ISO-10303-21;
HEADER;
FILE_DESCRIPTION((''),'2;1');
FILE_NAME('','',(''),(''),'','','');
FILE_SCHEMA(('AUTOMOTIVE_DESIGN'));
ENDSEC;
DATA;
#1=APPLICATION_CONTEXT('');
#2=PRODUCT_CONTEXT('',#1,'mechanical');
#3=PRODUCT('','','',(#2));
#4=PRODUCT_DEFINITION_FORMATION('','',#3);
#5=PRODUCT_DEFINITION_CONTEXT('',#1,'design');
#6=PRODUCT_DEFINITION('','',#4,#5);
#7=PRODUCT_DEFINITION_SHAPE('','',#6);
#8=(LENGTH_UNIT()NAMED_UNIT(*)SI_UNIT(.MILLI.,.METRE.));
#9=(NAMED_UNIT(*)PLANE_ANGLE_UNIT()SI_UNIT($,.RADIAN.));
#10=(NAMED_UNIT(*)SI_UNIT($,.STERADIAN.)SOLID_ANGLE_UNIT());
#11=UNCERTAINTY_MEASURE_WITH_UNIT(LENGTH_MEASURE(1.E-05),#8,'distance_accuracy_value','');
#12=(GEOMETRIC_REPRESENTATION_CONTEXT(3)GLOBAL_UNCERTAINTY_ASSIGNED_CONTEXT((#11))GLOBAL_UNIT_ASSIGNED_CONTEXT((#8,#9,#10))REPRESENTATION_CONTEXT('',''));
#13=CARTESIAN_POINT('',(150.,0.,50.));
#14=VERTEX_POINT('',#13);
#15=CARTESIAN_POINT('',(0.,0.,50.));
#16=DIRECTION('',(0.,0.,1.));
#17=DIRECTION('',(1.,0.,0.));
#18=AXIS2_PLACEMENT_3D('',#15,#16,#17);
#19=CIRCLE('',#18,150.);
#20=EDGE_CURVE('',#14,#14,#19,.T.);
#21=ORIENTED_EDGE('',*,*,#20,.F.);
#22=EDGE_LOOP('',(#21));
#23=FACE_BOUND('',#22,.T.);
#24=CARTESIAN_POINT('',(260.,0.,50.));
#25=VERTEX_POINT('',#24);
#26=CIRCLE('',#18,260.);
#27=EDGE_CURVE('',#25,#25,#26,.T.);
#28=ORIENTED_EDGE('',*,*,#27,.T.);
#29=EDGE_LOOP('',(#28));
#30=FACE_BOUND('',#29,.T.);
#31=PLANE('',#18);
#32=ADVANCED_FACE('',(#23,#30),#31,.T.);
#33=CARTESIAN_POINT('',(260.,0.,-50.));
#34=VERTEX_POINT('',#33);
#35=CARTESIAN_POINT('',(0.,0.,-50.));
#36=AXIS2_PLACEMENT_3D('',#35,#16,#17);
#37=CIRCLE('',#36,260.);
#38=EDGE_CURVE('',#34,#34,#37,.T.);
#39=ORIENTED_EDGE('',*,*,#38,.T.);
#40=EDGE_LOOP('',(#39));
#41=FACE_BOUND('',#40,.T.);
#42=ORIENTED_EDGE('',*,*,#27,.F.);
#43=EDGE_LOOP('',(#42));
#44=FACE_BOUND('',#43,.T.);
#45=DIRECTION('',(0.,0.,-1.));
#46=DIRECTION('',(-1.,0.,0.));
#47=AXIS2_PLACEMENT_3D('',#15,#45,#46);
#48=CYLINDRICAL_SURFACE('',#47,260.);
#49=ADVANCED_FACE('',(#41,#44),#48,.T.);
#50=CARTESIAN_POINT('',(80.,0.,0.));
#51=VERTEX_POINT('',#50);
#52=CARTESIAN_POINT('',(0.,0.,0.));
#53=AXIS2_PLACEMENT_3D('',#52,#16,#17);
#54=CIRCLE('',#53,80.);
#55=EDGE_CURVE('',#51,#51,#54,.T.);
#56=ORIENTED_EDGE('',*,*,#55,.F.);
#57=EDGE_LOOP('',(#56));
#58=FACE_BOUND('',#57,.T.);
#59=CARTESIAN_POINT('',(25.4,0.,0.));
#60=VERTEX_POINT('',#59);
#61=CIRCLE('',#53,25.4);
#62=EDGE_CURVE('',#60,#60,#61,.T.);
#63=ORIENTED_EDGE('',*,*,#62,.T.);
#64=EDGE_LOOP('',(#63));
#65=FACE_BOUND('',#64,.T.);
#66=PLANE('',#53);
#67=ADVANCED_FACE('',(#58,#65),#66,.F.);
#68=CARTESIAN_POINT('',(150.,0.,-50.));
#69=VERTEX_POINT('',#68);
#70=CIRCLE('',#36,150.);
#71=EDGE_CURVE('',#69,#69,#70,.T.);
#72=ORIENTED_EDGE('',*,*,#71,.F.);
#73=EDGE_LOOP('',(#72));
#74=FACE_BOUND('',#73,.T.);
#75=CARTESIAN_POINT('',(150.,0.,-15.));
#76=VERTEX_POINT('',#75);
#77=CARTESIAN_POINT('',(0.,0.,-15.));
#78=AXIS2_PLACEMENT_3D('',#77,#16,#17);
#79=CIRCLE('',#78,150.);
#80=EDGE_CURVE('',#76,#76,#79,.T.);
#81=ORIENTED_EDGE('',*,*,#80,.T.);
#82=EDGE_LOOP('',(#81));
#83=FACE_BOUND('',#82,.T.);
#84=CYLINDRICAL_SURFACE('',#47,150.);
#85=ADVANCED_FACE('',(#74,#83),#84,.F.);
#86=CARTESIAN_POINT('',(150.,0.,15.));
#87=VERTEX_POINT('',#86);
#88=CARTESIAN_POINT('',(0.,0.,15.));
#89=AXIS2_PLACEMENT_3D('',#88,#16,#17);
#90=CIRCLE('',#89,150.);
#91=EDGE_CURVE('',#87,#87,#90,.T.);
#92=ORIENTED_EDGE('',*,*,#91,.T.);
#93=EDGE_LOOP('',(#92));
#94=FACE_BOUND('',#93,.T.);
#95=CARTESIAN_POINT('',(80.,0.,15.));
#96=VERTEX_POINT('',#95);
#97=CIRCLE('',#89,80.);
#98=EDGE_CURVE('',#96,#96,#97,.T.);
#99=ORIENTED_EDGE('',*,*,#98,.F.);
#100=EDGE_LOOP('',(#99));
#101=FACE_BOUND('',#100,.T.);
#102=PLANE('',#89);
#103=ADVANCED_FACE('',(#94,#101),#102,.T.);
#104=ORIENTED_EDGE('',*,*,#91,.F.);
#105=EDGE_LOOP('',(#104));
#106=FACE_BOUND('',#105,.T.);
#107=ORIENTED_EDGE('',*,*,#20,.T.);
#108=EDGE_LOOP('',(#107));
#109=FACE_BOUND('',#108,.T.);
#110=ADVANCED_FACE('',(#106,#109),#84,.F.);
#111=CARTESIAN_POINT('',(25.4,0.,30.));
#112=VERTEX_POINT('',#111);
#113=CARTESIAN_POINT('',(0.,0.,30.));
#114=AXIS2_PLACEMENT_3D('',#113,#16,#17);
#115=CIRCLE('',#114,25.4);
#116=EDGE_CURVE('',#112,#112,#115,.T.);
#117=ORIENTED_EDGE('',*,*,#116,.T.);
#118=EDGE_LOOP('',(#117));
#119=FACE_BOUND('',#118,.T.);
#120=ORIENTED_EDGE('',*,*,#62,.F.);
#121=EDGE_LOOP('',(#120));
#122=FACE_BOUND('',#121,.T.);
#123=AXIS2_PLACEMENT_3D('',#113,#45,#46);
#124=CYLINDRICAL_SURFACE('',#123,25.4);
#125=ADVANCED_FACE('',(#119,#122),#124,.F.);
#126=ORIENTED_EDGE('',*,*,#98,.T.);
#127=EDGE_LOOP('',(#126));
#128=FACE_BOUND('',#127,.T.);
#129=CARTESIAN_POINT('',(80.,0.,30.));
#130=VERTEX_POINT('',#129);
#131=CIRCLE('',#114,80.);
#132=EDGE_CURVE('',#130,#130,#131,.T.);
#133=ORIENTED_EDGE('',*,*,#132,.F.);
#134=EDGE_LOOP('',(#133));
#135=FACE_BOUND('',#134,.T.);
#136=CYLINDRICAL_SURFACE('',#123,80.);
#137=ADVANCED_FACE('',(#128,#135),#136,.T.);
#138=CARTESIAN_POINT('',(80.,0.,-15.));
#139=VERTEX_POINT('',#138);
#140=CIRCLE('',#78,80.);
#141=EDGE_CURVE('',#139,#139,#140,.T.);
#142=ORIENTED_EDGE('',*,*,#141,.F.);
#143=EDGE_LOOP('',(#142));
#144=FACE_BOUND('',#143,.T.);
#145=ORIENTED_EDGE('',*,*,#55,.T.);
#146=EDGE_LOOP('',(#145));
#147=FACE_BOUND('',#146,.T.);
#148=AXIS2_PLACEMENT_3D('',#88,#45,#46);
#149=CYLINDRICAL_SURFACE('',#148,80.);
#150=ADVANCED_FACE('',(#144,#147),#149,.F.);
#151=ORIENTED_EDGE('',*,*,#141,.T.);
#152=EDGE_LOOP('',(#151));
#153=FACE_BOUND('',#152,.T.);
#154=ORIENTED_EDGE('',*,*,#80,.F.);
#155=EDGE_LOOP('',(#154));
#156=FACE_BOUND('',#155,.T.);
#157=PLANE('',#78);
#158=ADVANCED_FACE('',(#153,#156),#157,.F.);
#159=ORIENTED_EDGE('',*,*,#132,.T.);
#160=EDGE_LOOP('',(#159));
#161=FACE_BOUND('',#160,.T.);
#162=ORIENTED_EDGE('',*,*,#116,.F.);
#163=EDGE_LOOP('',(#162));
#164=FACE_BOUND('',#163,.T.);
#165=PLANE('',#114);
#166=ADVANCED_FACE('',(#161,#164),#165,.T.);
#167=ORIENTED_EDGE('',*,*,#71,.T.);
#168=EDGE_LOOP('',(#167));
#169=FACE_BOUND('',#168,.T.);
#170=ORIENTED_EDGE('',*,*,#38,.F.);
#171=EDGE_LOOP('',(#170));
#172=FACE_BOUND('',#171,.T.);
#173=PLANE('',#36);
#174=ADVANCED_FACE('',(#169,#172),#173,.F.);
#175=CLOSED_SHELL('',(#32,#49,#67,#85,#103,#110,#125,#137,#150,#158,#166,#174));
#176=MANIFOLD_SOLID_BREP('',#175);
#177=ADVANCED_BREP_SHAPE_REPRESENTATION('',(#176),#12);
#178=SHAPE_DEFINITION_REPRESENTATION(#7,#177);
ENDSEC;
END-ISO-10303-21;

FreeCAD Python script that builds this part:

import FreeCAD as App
import Part
import Sketcher

V = App.Vector
Q = App.Units.Quantity

doc = App.newDocument("Part")
params = doc.addObject("Spreadsheet::Sheet", "Params")
for row, (alias, value) in enumerate([
    ("sketch1_diameter", "520 mm"),
    ("sketch1_diameter2", "300 mm"),
    ("pad1_length", "100 mm"),
    ("sketch2_diameter", "300 mm"),
    ("sketch2_diameter2", "160 mm"),
    ("pad2_length", "30 mm"),
    ("sketch3_diameter", "160 mm"),
    ("sketch3_diameter2", "50.8 mm"),
    ("pad3_length", "30 mm"),
], start=1):
    params.set(f"A{row}", alias)
    params.set(f"B{row}", "=" + value)
    params.setAlias(f"B{row}", alias)

body = doc.addObject("PartDesign::Body", "Body")

# Sketch on XY plane
sketch1 = body.newObject("Sketcher::SketchObject", "Sketch")
sketch1.AttachmentSupport = (doc.getObject("XY_Plane"), [""])
sketch1.MapMode = "FlatFace"
sketch1.addGeometry([
    Part.Circle(V(0, 0, 0), V(0, 0, 1), 260),
    Part.Circle(V(0, 0, 0), V(0, 0, 1), 150),
], False)
sketch1.addConstraint([
    Sketcher.Constraint("Coincident", 0, 3, -1, 1),
    Sketcher.Constraint("Coincident", 1, 3, -1, 1),
    Sketcher.Constraint("Diameter", 0, Q("520 mm")),
    Sketcher.Constraint("Diameter", 1, Q("300 mm")),
])
sketch1.setExpression("Constraints[2]", "Params.sketch1_diameter")
sketch1.setExpression("Constraints[3]", "Params.sketch1_diameter2")
pad1 = body.newObject("PartDesign::Pad", "Pad")
pad1.Profile = sketch1
pad1.setExpression("Length", "Params.pad1_length")
pad1.Midplane = True

# Sketch on XY plane
sketch2 = body.newObject("Sketcher::SketchObject", "Sketch001")
sketch2.AttachmentSupport = (doc.getObject("XY_Plane"), [""])
sketch2.MapMode = "FlatFace"
sketch2.addGeometry([
    Part.Circle(V(0, 0, 0), V(0, 0, 1), 150),
    Part.Circle(V(0, 0, 0), V(0, 0, 1), 80),
], False)
sketch2.addConstraint([
    Sketcher.Constraint("Coincident", 0, 3, -1, 1),
    Sketcher.Constraint("Coincident", 1, 3, -1, 1),
    Sketcher.Constraint("Diameter", 0, Q("300 mm")),
    Sketcher.Constraint("Diameter", 1, Q("160 mm")),
])
sketch2.setExpression("Constraints[2]", "Params.sketch2_diameter")
sketch2.setExpression("Constraints[3]", "Params.sketch2_diameter2")
pad2 = body.newObject("PartDesign::Pad", "Pad001")
pad2.Profile = sketch2
pad2.setExpression("Length", "Params.pad2_length")
pad2.Midplane = True

# Sketch on XY plane
sketch3 = body.newObject("Sketcher::SketchObject", "Sketch002")
sketch3.AttachmentSupport = (doc.getObject("XY_Plane"), [""])
sketch3.MapMode = "FlatFace"
sketch3.addGeometry([
    Part.Circle(V(0, 0, 0), V(0, 0, 1), 80),
    Part.Circle(V(0, 0, 0), V(0, 0, 1), 25),
], False)
sketch3.addConstraint([
    Sketcher.Constraint("Coincident", 0, 3, -1, 1),
    Sketcher.Constraint("Coincident", 1, 3, -1, 1),
    Sketcher.Constraint("Diameter", 0, Q("160 mm")),
    Sketcher.Constraint("Diameter", 1, Q("50.8 mm")),
])
sketch3.setExpression("Constraints[2]", "Params.sketch3_diameter")
sketch3.setExpression("Constraints[3]", "Params.sketch3_diameter2")
pad3 = body.newObject("PartDesign::Pad", "Pad002")
pad3.Profile = sketch3
pad3.setExpression("Length", "Params.pad3_length")

doc.recompute()
